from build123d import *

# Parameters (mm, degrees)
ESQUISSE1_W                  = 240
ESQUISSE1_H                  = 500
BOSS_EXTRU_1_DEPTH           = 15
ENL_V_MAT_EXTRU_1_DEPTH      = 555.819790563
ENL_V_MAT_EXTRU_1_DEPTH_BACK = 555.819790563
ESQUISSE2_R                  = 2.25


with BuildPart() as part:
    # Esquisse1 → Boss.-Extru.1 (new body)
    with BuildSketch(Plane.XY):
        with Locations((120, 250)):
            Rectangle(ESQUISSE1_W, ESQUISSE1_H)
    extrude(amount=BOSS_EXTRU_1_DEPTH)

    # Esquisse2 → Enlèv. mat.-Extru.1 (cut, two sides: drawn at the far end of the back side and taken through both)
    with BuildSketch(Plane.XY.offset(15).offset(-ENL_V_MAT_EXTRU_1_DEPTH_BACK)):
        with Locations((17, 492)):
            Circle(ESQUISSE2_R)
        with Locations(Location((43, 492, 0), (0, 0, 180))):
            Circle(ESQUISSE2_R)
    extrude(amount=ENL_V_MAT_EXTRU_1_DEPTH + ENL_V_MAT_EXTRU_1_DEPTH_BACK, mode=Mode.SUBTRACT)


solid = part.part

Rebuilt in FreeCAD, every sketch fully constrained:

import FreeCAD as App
import Part
import Sketcher


def add_polygon(sketch, points):
    """Adds a closed chain of lines whose ends are joined by coincident constraints."""
    first, n = sketch.GeometryCount, len(points)
    for a, b in zip(points, points[1:] + points[:1]):
        sketch.addGeometry(Part.LineSegment(App.Vector(*a, 0), App.Vector(*b, 0)), False)
    for i in range(n):
        sketch.addConstraint(Sketcher.Constraint("Coincident", first + i, 2, first + (i + 1) % n, 1))

doc = App.newDocument("Part")
body = doc.addObject("PartDesign::Body", "Body")

# Sketch on XY plane
sketch1 = body.newObject("Sketcher::SketchObject", "Sketch")
sketch1.AttachmentSupport = (doc.getObject("XY_Plane"), [""])
sketch1.MapMode = "FlatFace"
add_polygon(sketch1, [(0, 500), (0, 0), (240, 0), (240, 500)])  # lines 0-3
sketch1.addConstraint(Sketcher.Constraint("Vertical", 0))
sketch1.addConstraint(Sketcher.Constraint("Horizontal", 1))
sketch1.addConstraint(Sketcher.Constraint("Vertical", 2))
sketch1.addConstraint(Sketcher.Constraint("Horizontal", 3))
sketch1.addConstraint(Sketcher.Constraint("Coincident", 0, 2, -1, 1))
sketch1.addConstraint(Sketcher.Constraint("DistanceX", 1, 1, 1, 2, 240.0))
sketch1.addConstraint(Sketcher.Constraint("DistanceY", 0, 2, 0, 1, 500.0))
pad1 = body.newObject("PartDesign::Pad", "Pad")
pad1.Profile = sketch1
pad1.Length = 15

# Sketch on XY plane
sketch2 = body.newObject("Sketcher::SketchObject", "Sketch001")
sketch2.AttachmentSupport = (doc.getObject("XY_Plane"), [""])
sketch2.MapMode = "FlatFace"
sketch2.AttachmentOffset = App.Placement(App.Vector(0, 0, 15), App.Rotation())
sketch2.addGeometry(Part.Circle(App.Vector(17, 492, 0), App.Vector(0, 0, 1), 2.25), False)
sketch2.addGeometry(Part.Circle(App.Vector(43, 492, 0), App.Vector(0, 0, 1), 2.25), False)
sketch2.addConstraint(Sketcher.Constraint("Equal", 0, 1))
sketch2.addConstraint(Sketcher.Constraint("Horizontal", 0, 3, 1, 3))
sketch2.addConstraint(Sketcher.Constraint("Diameter", 0, 4.5))
sketch2.addConstraint(Sketcher.Constraint("DistanceX", -1, 1, 0, 3, 17.0))
sketch2.addConstraint(Sketcher.Constraint("DistanceY", -1, 1, 0, 3, 492.0))
sketch2.addConstraint(Sketcher.Constraint("DistanceX", -1, 1, 1, 3, 43.0))
pocket1 = body.newObject("PartDesign::Pocket", "Pocket")
pocket1.Profile = sketch2
pocket1.Type = "ThroughAll"
pocket1.Midplane = True

doc.recompute()
